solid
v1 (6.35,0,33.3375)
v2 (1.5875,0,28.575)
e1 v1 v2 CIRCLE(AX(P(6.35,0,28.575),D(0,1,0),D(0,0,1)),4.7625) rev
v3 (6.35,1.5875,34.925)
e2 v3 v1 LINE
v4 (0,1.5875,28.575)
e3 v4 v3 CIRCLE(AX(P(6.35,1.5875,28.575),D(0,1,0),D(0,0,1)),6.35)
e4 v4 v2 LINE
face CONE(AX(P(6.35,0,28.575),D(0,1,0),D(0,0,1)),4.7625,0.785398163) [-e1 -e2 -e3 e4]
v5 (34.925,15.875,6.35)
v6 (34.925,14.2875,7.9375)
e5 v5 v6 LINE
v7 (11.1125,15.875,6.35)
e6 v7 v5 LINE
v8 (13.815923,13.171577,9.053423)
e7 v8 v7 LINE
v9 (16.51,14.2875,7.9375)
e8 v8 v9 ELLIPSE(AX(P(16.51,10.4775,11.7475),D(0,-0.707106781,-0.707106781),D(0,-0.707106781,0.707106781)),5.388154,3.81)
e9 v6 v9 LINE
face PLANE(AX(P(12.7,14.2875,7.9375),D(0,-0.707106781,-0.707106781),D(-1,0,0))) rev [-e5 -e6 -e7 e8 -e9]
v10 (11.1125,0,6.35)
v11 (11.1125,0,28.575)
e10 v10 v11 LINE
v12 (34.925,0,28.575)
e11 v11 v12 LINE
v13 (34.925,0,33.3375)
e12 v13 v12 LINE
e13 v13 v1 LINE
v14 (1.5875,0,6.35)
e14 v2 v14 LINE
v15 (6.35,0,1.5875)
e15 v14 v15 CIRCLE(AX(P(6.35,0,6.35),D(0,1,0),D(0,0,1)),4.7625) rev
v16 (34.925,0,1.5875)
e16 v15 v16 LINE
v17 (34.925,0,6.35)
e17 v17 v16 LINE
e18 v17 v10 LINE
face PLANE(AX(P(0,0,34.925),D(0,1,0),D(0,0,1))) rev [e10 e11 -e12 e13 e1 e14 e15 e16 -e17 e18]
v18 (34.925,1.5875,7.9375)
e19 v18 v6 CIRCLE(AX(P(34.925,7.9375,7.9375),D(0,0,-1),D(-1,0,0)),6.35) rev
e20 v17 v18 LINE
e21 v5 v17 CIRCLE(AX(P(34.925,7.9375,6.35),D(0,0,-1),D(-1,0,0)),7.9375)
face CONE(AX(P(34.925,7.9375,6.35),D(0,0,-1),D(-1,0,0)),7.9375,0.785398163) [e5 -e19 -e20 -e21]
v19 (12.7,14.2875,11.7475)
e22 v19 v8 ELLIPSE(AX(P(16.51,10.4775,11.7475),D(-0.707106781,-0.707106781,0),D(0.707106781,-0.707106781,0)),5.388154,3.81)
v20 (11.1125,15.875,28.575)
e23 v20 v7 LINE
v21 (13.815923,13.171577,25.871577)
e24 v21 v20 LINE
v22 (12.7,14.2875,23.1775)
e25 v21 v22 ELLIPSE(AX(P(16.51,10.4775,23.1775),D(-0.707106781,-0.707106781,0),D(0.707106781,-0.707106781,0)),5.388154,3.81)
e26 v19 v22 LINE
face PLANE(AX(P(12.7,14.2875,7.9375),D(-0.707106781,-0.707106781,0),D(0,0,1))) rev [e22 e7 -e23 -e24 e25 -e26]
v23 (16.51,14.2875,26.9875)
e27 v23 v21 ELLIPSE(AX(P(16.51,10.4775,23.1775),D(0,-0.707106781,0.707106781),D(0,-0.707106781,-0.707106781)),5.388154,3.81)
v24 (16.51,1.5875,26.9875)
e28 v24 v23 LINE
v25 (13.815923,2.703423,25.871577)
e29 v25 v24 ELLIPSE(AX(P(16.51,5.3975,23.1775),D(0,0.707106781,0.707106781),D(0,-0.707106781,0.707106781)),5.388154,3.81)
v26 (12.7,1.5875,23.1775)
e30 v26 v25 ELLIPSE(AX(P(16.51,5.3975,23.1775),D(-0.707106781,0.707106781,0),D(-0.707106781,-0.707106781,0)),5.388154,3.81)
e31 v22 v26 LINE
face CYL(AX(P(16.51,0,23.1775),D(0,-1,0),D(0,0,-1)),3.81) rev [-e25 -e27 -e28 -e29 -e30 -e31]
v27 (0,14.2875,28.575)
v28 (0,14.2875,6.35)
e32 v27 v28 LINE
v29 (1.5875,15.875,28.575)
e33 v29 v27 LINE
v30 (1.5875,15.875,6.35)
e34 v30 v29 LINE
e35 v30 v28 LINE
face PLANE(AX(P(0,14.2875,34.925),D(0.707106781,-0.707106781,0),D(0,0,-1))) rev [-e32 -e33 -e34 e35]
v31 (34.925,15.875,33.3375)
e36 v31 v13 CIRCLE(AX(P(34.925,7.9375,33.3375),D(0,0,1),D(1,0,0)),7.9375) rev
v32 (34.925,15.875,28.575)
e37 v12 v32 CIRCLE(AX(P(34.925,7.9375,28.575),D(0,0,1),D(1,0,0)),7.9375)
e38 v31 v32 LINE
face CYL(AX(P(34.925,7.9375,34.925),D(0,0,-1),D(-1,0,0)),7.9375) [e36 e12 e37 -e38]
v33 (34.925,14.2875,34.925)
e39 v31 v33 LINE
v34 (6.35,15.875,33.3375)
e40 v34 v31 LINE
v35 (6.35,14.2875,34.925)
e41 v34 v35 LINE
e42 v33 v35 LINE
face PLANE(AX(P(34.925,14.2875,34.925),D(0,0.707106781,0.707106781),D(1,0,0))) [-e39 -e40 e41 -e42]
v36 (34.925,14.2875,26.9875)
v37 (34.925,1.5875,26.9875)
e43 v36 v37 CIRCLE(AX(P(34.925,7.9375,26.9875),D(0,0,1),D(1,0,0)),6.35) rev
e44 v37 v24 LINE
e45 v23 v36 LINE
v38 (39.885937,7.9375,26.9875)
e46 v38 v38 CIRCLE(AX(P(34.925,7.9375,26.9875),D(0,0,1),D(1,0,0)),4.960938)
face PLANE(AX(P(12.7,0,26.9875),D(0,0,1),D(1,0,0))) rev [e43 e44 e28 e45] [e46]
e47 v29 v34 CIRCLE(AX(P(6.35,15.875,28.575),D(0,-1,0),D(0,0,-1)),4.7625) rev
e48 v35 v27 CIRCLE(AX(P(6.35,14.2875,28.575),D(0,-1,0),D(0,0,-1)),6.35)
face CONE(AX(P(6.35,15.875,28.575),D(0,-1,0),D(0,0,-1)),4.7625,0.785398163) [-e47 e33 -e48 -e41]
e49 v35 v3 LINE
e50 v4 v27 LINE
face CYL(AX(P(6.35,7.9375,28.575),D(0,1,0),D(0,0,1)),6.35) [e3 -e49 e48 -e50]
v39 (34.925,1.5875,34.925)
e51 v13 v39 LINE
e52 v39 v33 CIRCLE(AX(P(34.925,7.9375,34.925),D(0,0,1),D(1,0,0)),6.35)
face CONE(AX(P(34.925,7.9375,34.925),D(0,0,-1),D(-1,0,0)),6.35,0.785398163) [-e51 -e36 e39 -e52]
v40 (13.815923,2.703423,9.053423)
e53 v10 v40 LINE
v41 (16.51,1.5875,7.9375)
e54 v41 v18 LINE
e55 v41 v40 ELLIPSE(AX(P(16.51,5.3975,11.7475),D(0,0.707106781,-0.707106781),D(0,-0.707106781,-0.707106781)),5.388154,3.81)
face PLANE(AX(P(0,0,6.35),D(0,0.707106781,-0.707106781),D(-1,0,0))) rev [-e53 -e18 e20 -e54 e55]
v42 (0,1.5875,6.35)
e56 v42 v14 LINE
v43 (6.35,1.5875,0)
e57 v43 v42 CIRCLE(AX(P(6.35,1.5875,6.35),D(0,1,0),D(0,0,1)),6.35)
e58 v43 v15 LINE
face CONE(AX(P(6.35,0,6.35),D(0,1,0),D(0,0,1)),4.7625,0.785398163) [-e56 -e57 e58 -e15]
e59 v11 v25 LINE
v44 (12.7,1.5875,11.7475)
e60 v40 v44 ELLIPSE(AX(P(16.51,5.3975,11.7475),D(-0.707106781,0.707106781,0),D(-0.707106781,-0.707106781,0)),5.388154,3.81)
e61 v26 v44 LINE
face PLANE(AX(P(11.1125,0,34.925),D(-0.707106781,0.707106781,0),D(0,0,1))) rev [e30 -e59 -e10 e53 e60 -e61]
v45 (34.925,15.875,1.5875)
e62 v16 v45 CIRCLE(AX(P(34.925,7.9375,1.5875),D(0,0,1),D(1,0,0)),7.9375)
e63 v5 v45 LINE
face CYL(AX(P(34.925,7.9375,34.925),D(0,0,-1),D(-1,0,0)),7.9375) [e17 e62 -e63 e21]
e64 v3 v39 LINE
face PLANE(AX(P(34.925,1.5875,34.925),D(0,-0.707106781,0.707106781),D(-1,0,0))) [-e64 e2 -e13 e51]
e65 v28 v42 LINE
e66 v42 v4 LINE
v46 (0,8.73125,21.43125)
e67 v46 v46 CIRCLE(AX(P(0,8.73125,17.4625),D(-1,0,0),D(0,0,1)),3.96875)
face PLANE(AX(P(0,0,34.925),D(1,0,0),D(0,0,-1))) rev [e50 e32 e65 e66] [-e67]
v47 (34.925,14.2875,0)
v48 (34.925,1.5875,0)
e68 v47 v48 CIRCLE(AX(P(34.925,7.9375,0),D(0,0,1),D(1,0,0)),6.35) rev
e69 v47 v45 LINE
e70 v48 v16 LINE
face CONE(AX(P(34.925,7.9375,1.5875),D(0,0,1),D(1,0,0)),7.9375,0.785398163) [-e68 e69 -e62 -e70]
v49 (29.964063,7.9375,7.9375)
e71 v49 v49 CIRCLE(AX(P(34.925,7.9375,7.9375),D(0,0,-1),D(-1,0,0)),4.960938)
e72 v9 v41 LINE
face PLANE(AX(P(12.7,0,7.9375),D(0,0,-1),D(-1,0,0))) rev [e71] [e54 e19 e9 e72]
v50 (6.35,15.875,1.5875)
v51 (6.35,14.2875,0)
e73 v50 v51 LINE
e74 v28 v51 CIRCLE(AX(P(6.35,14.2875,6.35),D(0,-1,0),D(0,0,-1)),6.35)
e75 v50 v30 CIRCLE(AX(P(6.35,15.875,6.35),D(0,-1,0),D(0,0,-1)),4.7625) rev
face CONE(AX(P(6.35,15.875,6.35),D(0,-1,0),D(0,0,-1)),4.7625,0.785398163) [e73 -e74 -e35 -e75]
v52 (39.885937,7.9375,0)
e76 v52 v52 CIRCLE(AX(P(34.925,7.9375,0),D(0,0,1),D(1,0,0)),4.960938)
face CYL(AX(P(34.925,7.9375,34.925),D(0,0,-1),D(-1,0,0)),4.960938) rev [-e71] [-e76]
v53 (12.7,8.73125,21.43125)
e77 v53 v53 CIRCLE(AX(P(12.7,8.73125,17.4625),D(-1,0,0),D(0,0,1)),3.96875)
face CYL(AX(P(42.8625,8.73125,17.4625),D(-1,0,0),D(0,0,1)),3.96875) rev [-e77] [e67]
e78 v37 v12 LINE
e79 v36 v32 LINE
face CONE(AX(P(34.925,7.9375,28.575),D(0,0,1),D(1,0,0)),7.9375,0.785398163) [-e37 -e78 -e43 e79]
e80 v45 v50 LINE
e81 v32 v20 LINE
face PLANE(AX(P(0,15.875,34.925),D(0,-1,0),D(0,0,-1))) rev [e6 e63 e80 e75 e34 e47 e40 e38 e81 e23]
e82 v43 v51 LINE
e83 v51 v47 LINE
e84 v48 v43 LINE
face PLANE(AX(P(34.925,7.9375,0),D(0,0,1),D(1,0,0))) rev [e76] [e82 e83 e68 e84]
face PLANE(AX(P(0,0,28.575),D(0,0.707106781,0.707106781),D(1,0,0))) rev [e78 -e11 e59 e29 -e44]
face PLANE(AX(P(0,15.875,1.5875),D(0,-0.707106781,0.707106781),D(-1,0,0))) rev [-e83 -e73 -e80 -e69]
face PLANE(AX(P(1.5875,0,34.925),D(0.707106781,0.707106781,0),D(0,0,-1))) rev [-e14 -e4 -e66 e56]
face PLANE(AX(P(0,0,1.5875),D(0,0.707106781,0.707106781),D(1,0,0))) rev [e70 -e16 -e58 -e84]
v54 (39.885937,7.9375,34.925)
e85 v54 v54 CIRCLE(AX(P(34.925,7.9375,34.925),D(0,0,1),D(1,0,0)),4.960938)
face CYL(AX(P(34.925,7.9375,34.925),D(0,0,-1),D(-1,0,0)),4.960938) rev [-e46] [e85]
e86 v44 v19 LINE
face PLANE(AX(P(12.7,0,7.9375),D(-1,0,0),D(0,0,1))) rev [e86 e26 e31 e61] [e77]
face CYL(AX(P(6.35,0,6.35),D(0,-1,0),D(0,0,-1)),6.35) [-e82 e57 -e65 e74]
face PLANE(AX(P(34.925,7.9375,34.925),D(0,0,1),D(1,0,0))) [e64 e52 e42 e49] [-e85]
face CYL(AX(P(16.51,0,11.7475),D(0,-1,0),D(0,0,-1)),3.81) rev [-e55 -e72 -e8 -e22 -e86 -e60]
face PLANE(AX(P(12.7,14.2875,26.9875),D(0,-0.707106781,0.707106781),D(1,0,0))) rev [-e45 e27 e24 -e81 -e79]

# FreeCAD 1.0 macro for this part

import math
import FreeCAD as App
import Part
import Sketcher
Q = App.Units.Quantity


def edges_at(feature, points):
    """Names of the edges that pass closest to the given points."""
    edges = feature.Shape.Edges
    near = lambda p: min(range(len(edges)), key=lambda i: edges[i].distToShape(Part.Vertex(*p))[0])
    return sorted({f"Edge{near(p) + 1}" for p in points})

doc = App.newDocument("Part")
body = doc.addObject("PartDesign::Body", "Body")

# Sketch on XY plane
sketch1 = body.newObject("Sketcher::SketchObject", "Sketch")
sketch1.AttachmentSupport = (doc.getObject("XY_Plane"), [""])
sketch1.MapMode = "FlatFace"
sketch1.addGeometry([
    Part.LineSegment(App.Vector(0, 0, 0), App.Vector(34.9, 0, 0)),  # 0
    Part.ArcOfCircle(Part.Circle(App.Vector(34.9, 7.9, 0), App.Vector(0, 0, 1), 7.9), math.radians(-90), math.radians(90)),  # 1
    Part.LineSegment(App.Vector(34.9, 15.9, 0), App.Vector(0, 15.9, 0)),  # 2
    Part.LineSegment(App.Vector(0, 15.9, 0), App.Vector(0, 0, 0)),  # 3
    Part.Circle(App.Vector(34.9, 7.9, 0), App.Vector(0, 0, 1), 5),  # 4
], False)
sketch1.addConstraint([
    Sketcher.Constraint("Tangent", 0, 2, 1, 1),
    Sketcher.Constraint("Tangent", 1, 2, 2, 1),
    Sketcher.Constraint("Coincident", 2, 2, 3, 1),
    Sketcher.Constraint("Coincident", 3, 2, 0, 1),
    Sketcher.Constraint("Horizontal", 0),
    Sketcher.Constraint("Horizontal", 2),
    Sketcher.Constraint("Vertical", 3),
    Sketcher.Constraint("Coincident", 3, 2, -1, 1),
    Sketcher.Constraint("Coincident", 4, 3, 1, 3),
    Sketcher.Constraint("Diameter", 4, Q("0.390625 in")),
    Sketcher.Constraint("Radius", 1, Q("0.3125 in")),
    Sketcher.Constraint("DistanceX", 0, 1, 0, 2, Q("1.375 in")),
])
pad1 = body.newObject("PartDesign::Pad", "Pad")
pad1.Profile = sketch1
pad1.Length = Q("1.375 in")

# Sketch on XZ plane
sketch2 = body.newObject("Sketcher::SketchObject", "Sketch001")
sketch2.AttachmentSupport = (doc.getObject("XZ_Plane"), [""])
sketch2.MapMode = "FlatFace"
sketch2.AttachmentOffset = App.Placement(App.Vector(0, 0, -0.625 * 25.4), App.Rotation())
sketch2.addGeometry([
    Part.LineSegment(App.Vector(13, 8, 0), App.Vector(13, 27, 0)),
    Part.LineSegment(App.Vector(13, 27, 0), App.Vector(43, 27, 0)),
    Part.LineSegment(App.Vector(43, 27, 0), App.Vector(43, 8, 0)),
    Part.LineSegment(App.Vector(43, 8, 0), App.Vector(13, 8, 0)),
], False)
sketch2.addConstraint([
    Sketcher.Constraint("Coincident", 0, 2, 1, 1),
    Sketcher.Constraint("Coincident", 1, 2, 2, 1),
    Sketcher.Constraint("Coincident", 2, 2, 3, 1),
    Sketcher.Constraint("Coincident", 3, 2, 0, 1),
    Sketcher.Constraint("Vertical", 0),
    Sketcher.Constraint("Horizontal", 1),
    Sketcher.Constraint("Vertical", 2),
    Sketcher.Constraint("Horizontal", 3),
    Sketcher.Constraint("DistanceY", 0, 1, 0, 2, Q("0.75 in")),
    Sketcher.Constraint("DistanceX", -1, 1, 0, 2, Q("0.5 in")),
    Sketcher.Constraint("DistanceX", 1, 1, 1, 2, Q("1.1875 in")),
    Sketcher.Constraint("DistanceY", -1, 1, 0, 2, Q("1.0625 in")),
])
pocket1 = body.newObject("PartDesign::Pocket", "Pocket")
pocket1.Profile = sketch2
pocket1.Type = "ThroughAll"
pocket1.Reversed = True

# Sketch on YZ plane
sketch3 = body.newObject("Sketcher::SketchObject", "Sketch002")
sketch3.AttachmentSupport = (doc.getObject("YZ_Plane"), [""])
sketch3.MapMode = "FlatFace"
sketch3.addGeometry(Part.Circle(App.Vector(8.7, 17.5, 0), App.Vector(0, 0, 1), 4), False)
sketch3.addConstraint([
    Sketcher.Constraint("Diameter", 0, Q("0.3125 in")),
    Sketcher.Constraint("DistanceX", -1, 1, 0, 3, Q("0.34375 in")),
    Sketcher.Constraint("DistanceY", -1, 1, 0, 3, Q("0.6875 in")),
])
pocket2 = body.newObject("PartDesign::Pocket", "Pocket001")
pocket2.Profile = sketch3
pocket2.Type = "ThroughAll"
pocket2.Reversed = True
doc.recompute()

fillet = body.newObject("PartDesign::Fillet", "Fillet")
fillet.Base = (pocket2, edges_at(pocket2, [(0, 7.938, 34.925), (0, 7.938, 0)]))
fillet.Radius = Q("0.25 in")
doc.recompute()

chamfer = body.newObject("PartDesign::Chamfer", "Chamfer")
chamfer.Base = (fillet, edges_at(fillet, [
    (42.862, 7.938, 34.925),
    (20.637, 15.875, 34.925),
    (23.812, 15.875, 26.988),
    (23.812, 15.875, 7.938),
    (12.7, 15.875, 17.462),
    (42.862, 7.938, 7.938),
    (23.812, 0, 7.938),
    (42.862, 7.938, 26.988),
    (23.812, 0, 26.988),
    (12.7, 0, 17.462),
    (20.637, 15.875, 0),
    (0, 0, 17.462),
    (0, 15.875, 17.462),
    (42.862, 7.938, 0),
    (20.637, 0, 34.925),
    (20.637, 0, 0),
    (1.86, 0, 33.065),
    (1.86, 0, 1.86),
    (1.86, 15.875, 33.065),
    (1.86, 15.875, 1.86),
]))
chamfer.Size = Q("0.0625 in")
doc.recompute()

fillet2 = body.newObject("PartDesign::Fillet", "Fillet001")
fillet2.Base = (chamfer, edges_at(chamfer, [(12.7, 7.938, 26.988), (12.7, 7.938, 7.938)]))
fillet2.Radius = Q("0.15 in")

doc.recompute()
